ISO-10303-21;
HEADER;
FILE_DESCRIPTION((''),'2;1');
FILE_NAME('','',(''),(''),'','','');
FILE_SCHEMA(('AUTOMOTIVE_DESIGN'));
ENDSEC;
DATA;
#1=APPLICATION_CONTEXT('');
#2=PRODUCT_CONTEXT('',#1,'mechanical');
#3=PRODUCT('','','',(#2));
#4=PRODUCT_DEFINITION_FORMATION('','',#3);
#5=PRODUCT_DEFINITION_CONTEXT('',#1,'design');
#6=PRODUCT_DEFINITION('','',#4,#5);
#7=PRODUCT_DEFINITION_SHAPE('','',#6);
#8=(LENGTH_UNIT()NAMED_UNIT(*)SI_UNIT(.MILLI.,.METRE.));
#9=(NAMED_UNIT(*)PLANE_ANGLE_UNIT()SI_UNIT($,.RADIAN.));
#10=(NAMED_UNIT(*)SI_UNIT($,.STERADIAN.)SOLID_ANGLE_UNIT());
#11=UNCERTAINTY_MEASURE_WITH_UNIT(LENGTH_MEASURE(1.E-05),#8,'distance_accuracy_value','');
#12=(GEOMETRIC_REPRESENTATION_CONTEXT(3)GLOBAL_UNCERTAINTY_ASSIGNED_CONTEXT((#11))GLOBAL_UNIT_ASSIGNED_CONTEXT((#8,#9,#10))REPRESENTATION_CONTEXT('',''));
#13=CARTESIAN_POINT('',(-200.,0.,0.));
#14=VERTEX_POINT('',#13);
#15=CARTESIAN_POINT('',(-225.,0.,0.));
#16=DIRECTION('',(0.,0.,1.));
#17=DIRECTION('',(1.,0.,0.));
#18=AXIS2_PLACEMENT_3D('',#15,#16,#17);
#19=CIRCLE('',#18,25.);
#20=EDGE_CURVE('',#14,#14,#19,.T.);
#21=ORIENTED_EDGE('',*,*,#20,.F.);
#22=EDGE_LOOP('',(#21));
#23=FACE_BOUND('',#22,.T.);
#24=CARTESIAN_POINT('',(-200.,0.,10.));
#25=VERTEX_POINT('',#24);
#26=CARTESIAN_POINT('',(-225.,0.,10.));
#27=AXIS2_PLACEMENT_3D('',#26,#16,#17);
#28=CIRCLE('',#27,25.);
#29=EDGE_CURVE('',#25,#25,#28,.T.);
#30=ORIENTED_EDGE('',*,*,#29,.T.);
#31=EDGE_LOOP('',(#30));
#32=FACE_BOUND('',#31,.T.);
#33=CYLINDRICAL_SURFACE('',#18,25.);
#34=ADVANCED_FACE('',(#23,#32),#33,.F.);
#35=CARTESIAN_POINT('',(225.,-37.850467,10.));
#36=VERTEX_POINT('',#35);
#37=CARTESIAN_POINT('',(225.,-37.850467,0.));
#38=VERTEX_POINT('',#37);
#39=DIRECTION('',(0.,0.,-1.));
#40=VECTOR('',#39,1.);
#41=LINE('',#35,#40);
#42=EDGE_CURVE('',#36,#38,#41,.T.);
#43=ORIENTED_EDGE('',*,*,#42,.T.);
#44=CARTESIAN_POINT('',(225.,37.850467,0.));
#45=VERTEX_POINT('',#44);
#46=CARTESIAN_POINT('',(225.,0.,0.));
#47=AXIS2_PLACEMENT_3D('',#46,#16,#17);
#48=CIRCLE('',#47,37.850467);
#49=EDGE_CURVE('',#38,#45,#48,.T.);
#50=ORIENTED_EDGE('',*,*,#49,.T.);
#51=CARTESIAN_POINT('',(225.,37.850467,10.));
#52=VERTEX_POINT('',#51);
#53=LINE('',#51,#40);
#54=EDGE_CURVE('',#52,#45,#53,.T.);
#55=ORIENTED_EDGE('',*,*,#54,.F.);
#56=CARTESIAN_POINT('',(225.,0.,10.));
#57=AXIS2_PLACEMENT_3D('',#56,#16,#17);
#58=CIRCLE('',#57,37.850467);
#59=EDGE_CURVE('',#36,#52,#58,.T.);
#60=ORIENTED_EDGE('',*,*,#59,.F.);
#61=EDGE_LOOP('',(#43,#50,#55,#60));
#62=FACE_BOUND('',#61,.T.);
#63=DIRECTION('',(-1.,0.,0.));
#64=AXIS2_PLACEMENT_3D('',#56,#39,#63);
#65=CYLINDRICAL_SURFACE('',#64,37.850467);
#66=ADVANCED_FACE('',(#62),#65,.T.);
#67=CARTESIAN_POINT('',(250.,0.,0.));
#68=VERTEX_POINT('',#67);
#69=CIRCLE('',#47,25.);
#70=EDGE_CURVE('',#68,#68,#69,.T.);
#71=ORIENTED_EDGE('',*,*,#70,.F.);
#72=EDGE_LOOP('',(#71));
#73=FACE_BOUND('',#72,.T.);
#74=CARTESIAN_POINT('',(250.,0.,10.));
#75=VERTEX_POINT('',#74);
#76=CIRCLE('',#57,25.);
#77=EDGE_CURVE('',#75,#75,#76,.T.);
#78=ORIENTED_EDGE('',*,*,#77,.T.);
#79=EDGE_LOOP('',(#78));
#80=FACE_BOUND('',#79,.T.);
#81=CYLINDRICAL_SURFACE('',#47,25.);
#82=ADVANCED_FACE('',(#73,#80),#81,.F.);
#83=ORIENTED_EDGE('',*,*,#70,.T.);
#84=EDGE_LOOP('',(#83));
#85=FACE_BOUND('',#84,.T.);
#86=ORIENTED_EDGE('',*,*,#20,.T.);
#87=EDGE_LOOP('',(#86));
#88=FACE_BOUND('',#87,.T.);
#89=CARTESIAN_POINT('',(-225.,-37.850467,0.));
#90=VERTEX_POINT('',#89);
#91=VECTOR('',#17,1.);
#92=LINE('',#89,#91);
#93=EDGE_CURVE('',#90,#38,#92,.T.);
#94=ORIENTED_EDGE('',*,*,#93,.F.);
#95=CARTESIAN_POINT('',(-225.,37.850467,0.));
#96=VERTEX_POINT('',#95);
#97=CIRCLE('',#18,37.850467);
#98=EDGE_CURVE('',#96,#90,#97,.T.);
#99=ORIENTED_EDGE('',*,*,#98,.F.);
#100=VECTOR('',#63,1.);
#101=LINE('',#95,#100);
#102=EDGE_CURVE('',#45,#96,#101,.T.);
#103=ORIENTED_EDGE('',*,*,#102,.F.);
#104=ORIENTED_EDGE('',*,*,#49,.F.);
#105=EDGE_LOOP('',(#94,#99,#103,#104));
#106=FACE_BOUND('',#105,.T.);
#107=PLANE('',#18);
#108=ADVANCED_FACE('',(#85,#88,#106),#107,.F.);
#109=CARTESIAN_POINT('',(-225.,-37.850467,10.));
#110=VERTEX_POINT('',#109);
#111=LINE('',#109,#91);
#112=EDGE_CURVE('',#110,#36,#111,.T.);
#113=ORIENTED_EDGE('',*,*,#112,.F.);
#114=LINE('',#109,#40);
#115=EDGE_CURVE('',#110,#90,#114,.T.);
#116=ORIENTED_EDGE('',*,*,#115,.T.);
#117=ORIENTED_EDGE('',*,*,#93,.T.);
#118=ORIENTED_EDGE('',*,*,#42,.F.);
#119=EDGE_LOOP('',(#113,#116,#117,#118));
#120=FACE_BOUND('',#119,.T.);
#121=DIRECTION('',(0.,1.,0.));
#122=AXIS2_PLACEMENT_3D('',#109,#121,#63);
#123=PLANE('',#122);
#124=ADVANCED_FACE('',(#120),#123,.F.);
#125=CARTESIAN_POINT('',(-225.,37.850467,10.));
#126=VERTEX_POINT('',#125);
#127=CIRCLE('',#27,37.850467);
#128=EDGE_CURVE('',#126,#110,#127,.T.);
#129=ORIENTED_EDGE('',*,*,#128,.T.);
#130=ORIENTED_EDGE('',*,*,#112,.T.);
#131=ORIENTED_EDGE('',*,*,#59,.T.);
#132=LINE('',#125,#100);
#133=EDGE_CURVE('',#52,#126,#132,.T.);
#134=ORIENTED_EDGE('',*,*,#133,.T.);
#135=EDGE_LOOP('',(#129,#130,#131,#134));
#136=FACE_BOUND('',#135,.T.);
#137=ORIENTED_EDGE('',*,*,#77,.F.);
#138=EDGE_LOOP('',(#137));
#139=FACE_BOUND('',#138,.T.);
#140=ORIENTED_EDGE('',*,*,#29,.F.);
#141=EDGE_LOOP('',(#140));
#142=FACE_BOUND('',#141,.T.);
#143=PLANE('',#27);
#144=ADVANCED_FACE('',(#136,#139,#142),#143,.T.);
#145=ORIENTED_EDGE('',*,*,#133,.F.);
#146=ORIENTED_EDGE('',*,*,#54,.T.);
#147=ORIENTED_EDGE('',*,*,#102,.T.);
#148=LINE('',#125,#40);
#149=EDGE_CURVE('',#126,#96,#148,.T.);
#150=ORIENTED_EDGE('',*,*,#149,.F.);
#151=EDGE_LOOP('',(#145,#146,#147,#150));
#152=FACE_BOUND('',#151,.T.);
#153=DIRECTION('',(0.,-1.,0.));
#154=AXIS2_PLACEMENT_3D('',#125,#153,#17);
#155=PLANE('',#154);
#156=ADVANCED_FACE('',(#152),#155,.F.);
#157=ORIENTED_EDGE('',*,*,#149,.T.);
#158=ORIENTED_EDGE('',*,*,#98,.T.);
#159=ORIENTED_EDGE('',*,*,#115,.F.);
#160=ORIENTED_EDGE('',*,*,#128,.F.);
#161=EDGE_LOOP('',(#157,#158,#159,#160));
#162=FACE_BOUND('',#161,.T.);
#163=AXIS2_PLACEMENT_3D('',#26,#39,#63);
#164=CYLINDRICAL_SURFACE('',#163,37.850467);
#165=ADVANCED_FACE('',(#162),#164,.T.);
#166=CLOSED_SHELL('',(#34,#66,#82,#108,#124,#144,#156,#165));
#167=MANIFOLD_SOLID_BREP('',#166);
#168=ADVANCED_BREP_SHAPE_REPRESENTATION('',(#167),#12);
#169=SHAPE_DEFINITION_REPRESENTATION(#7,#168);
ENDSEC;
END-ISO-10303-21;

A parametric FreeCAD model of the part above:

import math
import FreeCAD as App
import Part
import Sketcher
Q = App.Units.Quantity

doc = App.newDocument("Part")
body = doc.addObject("PartDesign::Body", "Body")

# Sketch on XY plane
sketch1 = body.newObject("Sketcher::SketchObject", "Sketch")
sketch1.AttachmentSupport = (doc.getObject("XY_Plane"), [""])
sketch1.MapMode = "FlatFace"
sketch1.addGeometry([
    Part.LineSegment(App.Vector(225, 38, 0), App.Vector(-225, 38, 0)),
    Part.ArcOfCircle(Part.Circle(App.Vector(-225, 0, 0), App.Vector(0, 0, 1), 38), math.radians(90), math.radians(270)),
    Part.LineSegment(App.Vector(-225, -38, 0), App.Vector(225, -38, 0)),
    Part.ArcOfCircle(Part.Circle(App.Vector(225, 0, 0), App.Vector(0, 0, 1), 38), math.radians(-90), math.radians(90)),
], False)
sketch1.addConstraint([
    Sketcher.Constraint("Tangent", 0, 2, 1, 1),
    Sketcher.Constraint("Tangent", 1, 2, 2, 1),
    Sketcher.Constraint("Tangent", 2, 2, 3, 1),
    Sketcher.Constraint("Tangent", 3, 2, 0, 1),
    Sketcher.Constraint("Horizontal", 0),
    Sketcher.Constraint("Horizontal", 2),
    Sketcher.Constraint("Symmetric", 1, 3, 3, 3, -1, 1),
    Sketcher.Constraint("DistanceX", 0, 2, 0, 1, Q("450 mm")),
    Sketcher.Constraint("Radius", 1, Q("37.850467 mm")),
])
pad1 = body.newObject("PartDesign::Pad", "Pad")
pad1.Profile = sketch1
pad1.Length = 10

# Sketch on XY plane
sketch2 = body.newObject("Sketcher::SketchObject", "Sketch001")
sketch2.AttachmentSupport = (doc.getObject("XY_Plane"), [""])
sketch2.MapMode = "FlatFace"
sketch2.AttachmentOffset = App.Placement(App.Vector(0, 0, 10), App.Rotation())
sketch2.addGeometry([
    Part.Circle(App.Vector(-225, 0, 0), App.Vector(0, 0, 1), 25),
    Part.Circle(App.Vector(225, 0, 0), App.Vector(0, 0, 1), 25),
], False)
sketch2.addConstraint([
    Sketcher.Constraint("Equal", 0, 1),
    Sketcher.Constraint("Symmetric", 0, 3, 1, 3, -1, 1),
    Sketcher.Constraint("PointOnObject", 0, 3, -1),
    Sketcher.Constraint("Diameter", 0, Q("50 mm")),
    Sketcher.Constraint("DistanceX", 0, 3, -1, 1, Q("225 mm")),
])
pocket1 = body.newObject("PartDesign::Pocket", "Pocket")
pocket1.Profile = sketch2
pocket1.Length = 10

doc.recompute()
